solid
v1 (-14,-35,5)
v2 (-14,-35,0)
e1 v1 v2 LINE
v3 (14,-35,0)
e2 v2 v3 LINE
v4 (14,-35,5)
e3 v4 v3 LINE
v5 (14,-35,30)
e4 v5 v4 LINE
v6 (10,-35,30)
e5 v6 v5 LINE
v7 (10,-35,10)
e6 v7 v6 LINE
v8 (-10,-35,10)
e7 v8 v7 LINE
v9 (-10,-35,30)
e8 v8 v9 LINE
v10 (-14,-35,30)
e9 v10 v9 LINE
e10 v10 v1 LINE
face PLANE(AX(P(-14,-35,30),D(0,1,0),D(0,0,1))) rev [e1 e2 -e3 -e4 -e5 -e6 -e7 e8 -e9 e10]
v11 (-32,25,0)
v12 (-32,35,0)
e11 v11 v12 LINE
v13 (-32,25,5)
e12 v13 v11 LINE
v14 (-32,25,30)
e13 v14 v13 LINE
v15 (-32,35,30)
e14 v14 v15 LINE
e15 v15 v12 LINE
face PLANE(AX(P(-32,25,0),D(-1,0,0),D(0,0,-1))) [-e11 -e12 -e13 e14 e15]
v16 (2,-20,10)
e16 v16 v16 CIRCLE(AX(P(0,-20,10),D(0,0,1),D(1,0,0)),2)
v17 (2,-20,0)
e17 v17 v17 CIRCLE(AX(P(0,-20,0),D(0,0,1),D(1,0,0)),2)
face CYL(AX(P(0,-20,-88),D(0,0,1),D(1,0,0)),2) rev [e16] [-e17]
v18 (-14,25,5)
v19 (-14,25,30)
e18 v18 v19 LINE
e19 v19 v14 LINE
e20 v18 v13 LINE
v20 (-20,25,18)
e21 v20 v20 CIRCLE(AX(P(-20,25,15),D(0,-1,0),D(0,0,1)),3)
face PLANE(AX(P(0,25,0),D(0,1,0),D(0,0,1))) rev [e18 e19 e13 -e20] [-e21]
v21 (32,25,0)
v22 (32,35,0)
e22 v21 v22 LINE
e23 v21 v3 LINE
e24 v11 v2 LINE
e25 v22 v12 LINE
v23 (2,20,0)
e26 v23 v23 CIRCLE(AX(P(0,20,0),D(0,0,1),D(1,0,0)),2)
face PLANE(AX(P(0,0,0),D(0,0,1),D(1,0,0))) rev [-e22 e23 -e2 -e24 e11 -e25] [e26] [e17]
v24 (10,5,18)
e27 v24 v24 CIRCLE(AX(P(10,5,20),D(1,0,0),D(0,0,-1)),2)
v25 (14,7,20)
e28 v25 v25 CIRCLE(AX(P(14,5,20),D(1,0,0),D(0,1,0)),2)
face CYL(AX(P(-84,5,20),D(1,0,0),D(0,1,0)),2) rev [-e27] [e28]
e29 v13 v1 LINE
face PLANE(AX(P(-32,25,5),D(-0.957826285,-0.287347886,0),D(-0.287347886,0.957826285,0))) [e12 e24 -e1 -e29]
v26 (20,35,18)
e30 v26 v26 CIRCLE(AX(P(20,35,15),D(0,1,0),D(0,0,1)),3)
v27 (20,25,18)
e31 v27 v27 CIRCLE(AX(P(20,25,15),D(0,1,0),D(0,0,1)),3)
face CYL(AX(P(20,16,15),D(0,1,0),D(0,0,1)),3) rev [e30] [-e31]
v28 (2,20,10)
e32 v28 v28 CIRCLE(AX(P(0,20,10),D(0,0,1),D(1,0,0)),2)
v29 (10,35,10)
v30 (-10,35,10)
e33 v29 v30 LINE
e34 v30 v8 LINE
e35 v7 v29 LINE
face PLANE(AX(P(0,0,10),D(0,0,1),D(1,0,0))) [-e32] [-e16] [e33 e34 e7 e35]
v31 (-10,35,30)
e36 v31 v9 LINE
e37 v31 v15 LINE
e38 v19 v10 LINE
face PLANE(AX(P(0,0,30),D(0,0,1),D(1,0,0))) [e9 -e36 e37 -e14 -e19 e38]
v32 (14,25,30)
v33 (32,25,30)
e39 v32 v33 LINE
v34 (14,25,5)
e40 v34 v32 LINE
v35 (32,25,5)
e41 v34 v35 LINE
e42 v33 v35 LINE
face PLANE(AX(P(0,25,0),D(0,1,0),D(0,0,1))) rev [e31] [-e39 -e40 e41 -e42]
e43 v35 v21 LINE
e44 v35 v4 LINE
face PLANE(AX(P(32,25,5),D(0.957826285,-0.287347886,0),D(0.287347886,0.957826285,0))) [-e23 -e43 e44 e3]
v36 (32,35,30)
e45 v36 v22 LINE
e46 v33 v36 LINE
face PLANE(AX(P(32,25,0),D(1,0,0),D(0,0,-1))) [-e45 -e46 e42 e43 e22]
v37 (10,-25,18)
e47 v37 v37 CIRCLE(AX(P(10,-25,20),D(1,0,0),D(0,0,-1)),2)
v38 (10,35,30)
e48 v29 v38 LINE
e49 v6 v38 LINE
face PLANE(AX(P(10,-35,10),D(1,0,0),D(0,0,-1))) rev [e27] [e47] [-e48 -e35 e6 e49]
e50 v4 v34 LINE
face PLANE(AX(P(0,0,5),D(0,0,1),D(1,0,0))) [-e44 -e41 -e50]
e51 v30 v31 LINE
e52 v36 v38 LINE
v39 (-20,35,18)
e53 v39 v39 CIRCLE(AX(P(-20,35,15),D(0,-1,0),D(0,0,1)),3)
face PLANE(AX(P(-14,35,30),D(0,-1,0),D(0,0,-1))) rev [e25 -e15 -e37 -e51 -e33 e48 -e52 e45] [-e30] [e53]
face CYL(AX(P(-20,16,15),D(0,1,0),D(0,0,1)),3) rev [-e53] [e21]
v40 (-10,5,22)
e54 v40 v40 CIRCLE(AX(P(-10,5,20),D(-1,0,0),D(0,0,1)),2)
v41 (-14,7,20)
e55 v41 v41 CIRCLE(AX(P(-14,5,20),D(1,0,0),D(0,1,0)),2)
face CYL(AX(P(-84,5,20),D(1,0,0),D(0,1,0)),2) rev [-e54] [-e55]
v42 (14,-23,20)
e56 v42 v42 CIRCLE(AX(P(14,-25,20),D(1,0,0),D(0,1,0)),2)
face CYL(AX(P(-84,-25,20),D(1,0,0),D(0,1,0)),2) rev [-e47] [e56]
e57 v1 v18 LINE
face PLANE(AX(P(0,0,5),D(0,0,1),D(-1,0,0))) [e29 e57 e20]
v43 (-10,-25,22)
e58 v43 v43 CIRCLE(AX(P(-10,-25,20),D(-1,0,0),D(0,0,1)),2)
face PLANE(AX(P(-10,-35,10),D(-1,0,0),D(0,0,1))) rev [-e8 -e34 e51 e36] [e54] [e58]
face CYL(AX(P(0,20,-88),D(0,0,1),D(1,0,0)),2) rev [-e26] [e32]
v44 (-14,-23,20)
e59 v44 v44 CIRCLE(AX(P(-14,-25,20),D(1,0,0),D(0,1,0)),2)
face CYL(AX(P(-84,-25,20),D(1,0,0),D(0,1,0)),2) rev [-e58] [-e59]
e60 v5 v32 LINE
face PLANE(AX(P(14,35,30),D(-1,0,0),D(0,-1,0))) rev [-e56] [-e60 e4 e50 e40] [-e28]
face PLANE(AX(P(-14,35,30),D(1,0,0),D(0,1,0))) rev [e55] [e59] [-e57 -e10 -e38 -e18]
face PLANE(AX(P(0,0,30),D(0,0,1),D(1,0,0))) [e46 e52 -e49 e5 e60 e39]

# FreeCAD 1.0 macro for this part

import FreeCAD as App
import Part
import Sketcher
from FreeCAD import Vector
Q = App.Units.Quantity


def add_polygon(sketch, points):
    """Adds a closed chain of lines whose ends are joined by coincident constraints."""
    first, n = sketch.GeometryCount, len(points)
    for a, b in zip(points, points[1:] + points[:1]):
        sketch.addGeometry(Part.LineSegment(App.Vector(*a, 0), App.Vector(*b, 0)), False)
    for i in range(n):
        sketch.addConstraint(Sketcher.Constraint("Coincident", first + i, 2, first + (i + 1) % n, 1))

doc = App.newDocument("Part")
body = doc.addObject("PartDesign::Body", "Body")

sketch1 = body.newObject("Sketcher::SketchObject", "Sketch")
sketch1.AttachmentSupport = (doc.getObject("XY_Plane"), [""])
sketch1.MapMode = "FlatFace"
add_polygon(sketch1, [(-14, 35), (-14, -35), (14, -35), (14, 35)])
sketch1.addConstraint([
    Sketcher.Constraint("Vertical", 0),
    Sketcher.Constraint("Horizontal", 1),
    Sketcher.Constraint("Vertical", 2),
    Sketcher.Constraint("Horizontal", 3),
    Sketcher.Constraint("Symmetric", 0, 2, 2, 2, -1, 1),
    Sketcher.Constraint("DistanceX", 1, 1, 1, 2, Q("28 mm")),
    Sketcher.Constraint("DistanceY", 0, 2, 0, 1, Q("70 mm")),
])
pad1 = body.newObject("PartDesign::Pad", "Pad")
pad1.Profile = sketch1
pad1.Length = 30

sketch2 = body.newObject("Sketcher::SketchObject", "Sketch001")
sketch2.AttachmentSupport = (doc.getObject("XY_Plane"), [""])
sketch2.MapMode = "FlatFace"
sketch2.AttachmentOffset = App.Placement(Vector(0, 0, 30), App.Rotation())
add_polygon(sketch2, [(-10, 35), (-10, -35), (10, -35), (10, 35)])
sketch2.addConstraint([
    Sketcher.Constraint("Vertical", 0),
    Sketcher.Constraint("Horizontal", 1),
    Sketcher.Constraint("Vertical", 2),
    Sketcher.Constraint("Horizontal", 3),
    Sketcher.Constraint("Symmetric", 0, 2, 2, 2, -1, 1),
    Sketcher.Constraint("DistanceX", 1, 1, 1, 2, Q("20 mm")),
    Sketcher.Constraint("DistanceY", 0, 2, 0, 1, Q("70 mm")),
])
pocket1 = body.newObject("PartDesign::Pocket", "Pocket")
pocket1.Profile = sketch2
pocket1.Length = 20

sketch3 = body.newObject("Sketcher::SketchObject", "Sketch002")
sketch3.AttachmentSupport = (doc.getObject("XZ_Plane"), [""])
sketch3.MapMode = "FlatFace"
sketch3.AttachmentOffset = App.Placement(Vector(0, 0, -35), App.Rotation())
add_polygon(sketch3, [(14, 0), (14, 30), (32, 30), (32, 0)])
sketch3.addConstraint([
    Sketcher.Constraint("Vertical", 0),
    Sketcher.Constraint("Horizontal", 1),
    Sketcher.Constraint("Vertical", 2),
    Sketcher.Constraint("Horizontal", 3),
    Sketcher.Constraint("PointOnObject", 2, 2, -1),
    Sketcher.Constraint("DistanceX", 1, 1, 1, 2, Q("18 mm")),
    Sketcher.Constraint("DistanceY", 0, 1, 0, 2, Q("30 mm")),
    Sketcher.Constraint("DistanceX", -1, 1, 0, 2, Q("14 mm")),
])
pad2 = body.newObject("PartDesign::Pad", "Pad001")
pad2.Profile = sketch3
pad2.Length = 10

sketch4 = body.newObject("Sketcher::SketchObject", "Sketch003")
sketch4.AttachmentSupport = (doc.getObject("XZ_Plane"), [""])
sketch4.MapMode = "FlatFace"
sketch4.AttachmentOffset = App.Placement(Vector(0, 0, -35), App.Rotation())
sketch4.addGeometry(Part.Circle(Vector(20, 15, 0), Vector(0, 0, 1), 3), False)
sketch4.addConstraint([
    Sketcher.Constraint("Diameter", 0, Q("6 mm")),
    Sketcher.Constraint("DistanceX", -1, 1, 0, 3, Q("20 mm")),
    Sketcher.Constraint("DistanceY", -1, 1, 0, 3, Q("15 mm")),
])
pocket2 = body.newObject("PartDesign::Pocket", "Pocket001")
pocket2.Profile = sketch4
pocket2.Length = 19
pocket2.Reversed = True

sketch5 = body.newObject("Sketcher::SketchObject", "Sketch004")
sketch5.AttachmentSupport = (doc.getObject("XY_Plane"), [""])
sketch5.MapMode = "FlatFace"
add_polygon(sketch5, [(32, 25), (14, -35), (14, 25)])
sketch5.addConstraint([
    Sketcher.Constraint("Vertical", 1),
    Sketcher.Constraint("Horizontal", 2),
    Sketcher.Constraint("DistanceX", 2, 1, 2, 2, Q("18 mm")),
    Sketcher.Constraint("DistanceY", 1, 1, 1, 2, Q("60 mm")),
    Sketcher.Constraint("DistanceX", -1, 1, 0, 2, Q("14 mm")),
    Sketcher.Constraint("DistanceY", 0, 2, -1, 1, Q("35 mm")),
])
pad3 = body.newObject("PartDesign::Pad", "Pad002")
pad3.Profile = sketch5
pad3.Length = 5
body2 = doc.addObject("PartDesign::Body", "Body001")
doc.recompute()

body2.BaseFeature = body
doc.recompute()

mirroring = doc.addObject("Part::Mirroring", "Mirroring")
mirroring.Source = body
mirroring.Base = Vector(0, 0, 0)
mirroring.Normal = Vector(1, 0, 0)
body3 = doc.addObject("PartDesign::Body", "Body002")
body3.BaseFeature = mirroring
boolean = body2.newObject("PartDesign::Boolean", "Boolean")
boolean.Type = "Fuse"
boolean.addObjects([body3])
doc.recompute()

sketch6 = body2.newObject("Sketcher::SketchObject", "Sketch005")
sketch6.AttachmentSupport = (doc.getObject("YZ_Plane001"), [""])
sketch6.MapMode = "FlatFace"
sketch6.AttachmentOffset = App.Placement(Vector(0, 0, 14), App.Rotation())
sketch6.addGeometry([
    Part.Circle(Vector(-25, 20, 0), Vector(0, 0, 1), 2),
    Part.Circle(Vector(5, 20, 0), Vector(0, 0, 1), 2),
], False)
sketch6.addConstraint([
    Sketcher.Constraint("Equal", 0, 1),
    Sketcher.Constraint("Horizontal", 0, 3, 1, 3),
    Sketcher.Constraint("Diameter", 0, Q("4 mm")),
    Sketcher.Constraint("DistanceX", 0, 3, -1, 1, Q("25 mm")),
    Sketcher.Constraint("DistanceY", -1, 1, 0, 3, Q("20 mm")),
    Sketcher.Constraint("DistanceX", -1, 1, 1, 3, Q("5 mm")),
])
pocket3 = body2.newObject("PartDesign::Pocket", "Pocket002")
pocket3.Profile = sketch6
pocket3.Length = 98

sketch7 = body2.newObject("Sketcher::SketchObject", "Sketch006")
sketch7.AttachmentSupport = (doc.getObject("XY_Plane001"), [""])
sketch7.MapMode = "FlatFace"
sketch7.AttachmentOffset = App.Placement(Vector(0, 0, 10), App.Rotation())
sketch7.addGeometry([
    Part.Circle(Vector(0, -20, 0), Vector(0, 0, 1), 2),
    Part.Circle(Vector(0, 20, 0), Vector(0, 0, 1), 2),
], False)
sketch7.addConstraint([
    Sketcher.Constraint("Equal", 0, 1),
    Sketcher.Constraint("Symmetric", 0, 3, 1, 3, -1, 1),
    Sketcher.Constraint("PointOnObject", 0, 3, -2),
    Sketcher.Constraint("Diameter", 0, Q("4 mm")),
    Sketcher.Constraint("DistanceY", 0, 3, -1, 1, Q("20 mm")),
])
pocket4 = body2.newObject("PartDesign::Pocket", "Pocket003")
pocket4.Profile = sketch7
pocket4.Length = 98
mirroring.Visibility = False

doc.recompute()
